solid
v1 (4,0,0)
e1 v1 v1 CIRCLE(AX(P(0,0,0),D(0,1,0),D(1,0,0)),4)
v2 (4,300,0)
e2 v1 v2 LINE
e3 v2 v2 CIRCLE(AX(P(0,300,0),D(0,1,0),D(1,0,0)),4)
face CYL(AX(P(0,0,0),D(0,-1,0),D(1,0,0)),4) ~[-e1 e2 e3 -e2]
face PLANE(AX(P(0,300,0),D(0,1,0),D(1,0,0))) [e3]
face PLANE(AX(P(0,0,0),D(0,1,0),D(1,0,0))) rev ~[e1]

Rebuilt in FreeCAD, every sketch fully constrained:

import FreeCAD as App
import Part
import Sketcher

V = App.Vector

doc = App.newDocument("Part")
params = doc.addObject("Spreadsheet::Sheet", "Params")
for row, (alias, value) in enumerate([
    ("sketch1_diameter", "8 mm"),
    ("pad1_length", "300 mm"),
], start=1):
    params.set(f"A{row}", alias)
    params.set(f"B{row}", "=" + value)
    params.setAlias(f"B{row}", alias)

body = doc.addObject("PartDesign::Body", "Body")

# Sketch on XZ plane
sketch1 = body.newObject("Sketcher::SketchObject", "Sketch")
sketch1.AttachmentSupport = (doc.getObject("XZ_Plane"), [""])
sketch1.MapMode = "FlatFace"
sketch1.addGeometry(Part.Circle(V(0, 0, 0), V(0, 0, 1), 4), False)
sketch1.addConstraint([
    Sketcher.Constraint("Coincident", 0, 3, -1, 1),
    Sketcher.Constraint("Diameter", 0, 8.0),
])
sketch1.setExpression("Constraints[1]", "Params.sketch1_diameter")
pad1 = body.newObject("PartDesign::Pad", "Pad")
pad1.Profile = sketch1
pad1.setExpression("Length", "Params.pad1_length")
pad1.Reversed = True

doc.recompute()
